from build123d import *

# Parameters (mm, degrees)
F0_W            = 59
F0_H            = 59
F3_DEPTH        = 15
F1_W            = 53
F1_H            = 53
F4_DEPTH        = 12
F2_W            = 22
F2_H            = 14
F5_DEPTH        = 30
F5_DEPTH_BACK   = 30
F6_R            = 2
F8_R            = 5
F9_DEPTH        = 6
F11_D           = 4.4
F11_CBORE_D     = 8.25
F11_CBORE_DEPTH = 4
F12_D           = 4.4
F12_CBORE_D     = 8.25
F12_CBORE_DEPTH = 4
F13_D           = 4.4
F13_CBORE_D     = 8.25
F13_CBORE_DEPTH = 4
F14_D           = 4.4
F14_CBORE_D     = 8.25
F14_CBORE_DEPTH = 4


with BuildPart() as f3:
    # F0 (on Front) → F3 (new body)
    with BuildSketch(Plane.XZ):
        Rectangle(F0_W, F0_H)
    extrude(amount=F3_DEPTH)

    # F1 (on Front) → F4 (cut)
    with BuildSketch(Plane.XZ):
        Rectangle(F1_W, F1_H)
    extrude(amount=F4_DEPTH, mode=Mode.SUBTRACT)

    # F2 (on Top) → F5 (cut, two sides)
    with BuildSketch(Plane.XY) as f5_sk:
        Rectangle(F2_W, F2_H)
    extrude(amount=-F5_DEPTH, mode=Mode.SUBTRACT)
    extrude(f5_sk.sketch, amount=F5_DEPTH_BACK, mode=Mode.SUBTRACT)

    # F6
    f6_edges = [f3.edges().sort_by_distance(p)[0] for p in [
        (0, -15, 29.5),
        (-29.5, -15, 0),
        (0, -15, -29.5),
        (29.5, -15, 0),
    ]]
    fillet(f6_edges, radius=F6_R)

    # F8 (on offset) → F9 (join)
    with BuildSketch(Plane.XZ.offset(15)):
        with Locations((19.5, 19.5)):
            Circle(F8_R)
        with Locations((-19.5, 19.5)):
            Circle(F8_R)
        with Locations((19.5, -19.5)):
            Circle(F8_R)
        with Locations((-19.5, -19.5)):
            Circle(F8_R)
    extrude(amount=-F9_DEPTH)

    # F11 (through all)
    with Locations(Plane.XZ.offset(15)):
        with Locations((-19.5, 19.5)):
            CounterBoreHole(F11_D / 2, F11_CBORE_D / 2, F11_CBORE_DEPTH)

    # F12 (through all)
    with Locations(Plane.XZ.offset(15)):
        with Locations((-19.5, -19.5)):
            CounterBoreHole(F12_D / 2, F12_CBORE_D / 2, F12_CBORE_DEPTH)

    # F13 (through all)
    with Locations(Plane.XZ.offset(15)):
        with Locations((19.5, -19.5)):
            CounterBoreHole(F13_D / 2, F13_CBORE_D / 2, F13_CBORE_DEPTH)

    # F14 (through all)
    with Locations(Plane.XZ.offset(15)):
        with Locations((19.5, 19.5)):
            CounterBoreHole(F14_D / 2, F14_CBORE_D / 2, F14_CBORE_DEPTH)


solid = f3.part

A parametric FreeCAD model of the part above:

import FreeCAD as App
import Part
import Sketcher
from FreeCAD import Vector


def edges_at(feature, points):
    """Names of the edges that pass closest to the given points."""
    edges = feature.Shape.Edges
    near = lambda p: min(range(len(edges)), key=lambda i: edges[i].distToShape(Part.Vertex(*p))[0])
    return sorted({f"Edge{near(p) + 1}" for p in points})

doc = App.newDocument("Part")
body = doc.addObject("PartDesign::Body", "Body")

# Sketch on XZ plane
sketch1 = doc.addObject("Sketcher::SketchObject", "Sketch")
body.addObject(sketch1)
sketch1.AttachmentSupport = (doc.XZ_Plane, [""])
sketch1.MapMode = "FlatFace"
sketch1.addGeometry([
    Part.LineSegment(Vector(-30, 30, 0), Vector(-30, -30, 0)),
    Part.LineSegment(Vector(-30, -30, 0), Vector(30, -30, 0)),
    Part.LineSegment(Vector(30, -30, 0), Vector(30, 30, 0)),
    Part.LineSegment(Vector(30, 30, 0), Vector(-30, 30, 0)),
], False)
sketch1.addConstraint([
    Sketcher.Constraint("Coincident", 0, 2, 1, 1),
    Sketcher.Constraint("Coincident", 1, 2, 2, 1),
    Sketcher.Constraint("Coincident", 2, 2, 3, 1),
    Sketcher.Constraint("Coincident", 3, 2, 0, 1),
    Sketcher.Constraint("Vertical", 0),
    Sketcher.Constraint("Horizontal", 1),
    Sketcher.Constraint("Vertical", 2),
    Sketcher.Constraint("Horizontal", 3),
    Sketcher.Constraint("Symmetric", 0, 2, 2, 2, -1, 1),
    Sketcher.Constraint("Equal", 3, 0),
    Sketcher.Constraint("DistanceX", 1, 1, 1, 2, 59.0),
])
pad1 = doc.addObject("PartDesign::Pad", "Pad")
body.addObject(pad1)
pad1.Profile = sketch1
pad1.Length = 15

# Sketch on XZ plane
sketch2 = doc.addObject("Sketcher::SketchObject", "Sketch001")
body.addObject(sketch2)
sketch2.AttachmentSupport = (doc.XZ_Plane, [""])
sketch2.MapMode = "FlatFace"
sketch2.addGeometry([
    Part.LineSegment(Vector(-26, 26, 0), Vector(-26, -26, 0)),
    Part.LineSegment(Vector(-26, -26, 0), Vector(26, -26, 0)),
    Part.LineSegment(Vector(26, -26, 0), Vector(26, 26, 0)),
    Part.LineSegment(Vector(26, 26, 0), Vector(-26, 26, 0)),
], False)
sketch2.addConstraint([
    Sketcher.Constraint("Coincident", 0, 2, 1, 1),
    Sketcher.Constraint("Coincident", 1, 2, 2, 1),
    Sketcher.Constraint("Coincident", 2, 2, 3, 1),
    Sketcher.Constraint("Coincident", 3, 2, 0, 1),
    Sketcher.Constraint("Vertical", 0),
    Sketcher.Constraint("Horizontal", 1),
    Sketcher.Constraint("Vertical", 2),
    Sketcher.Constraint("Horizontal", 3),
    Sketcher.Constraint("Symmetric", 0, 2, 2, 2, -1, 1),
    Sketcher.Constraint("Equal", 3, 0),
    Sketcher.Constraint("DistanceX", 1, 1, 1, 2, 53.0),
])
pocket1 = doc.addObject("PartDesign::Pocket", "Pocket")
body.addObject(pocket1)
pocket1.Profile = sketch2
pocket1.Length = 12
pocket1.Reversed = True

# Sketch on XY plane
sketch3 = doc.addObject("Sketcher::SketchObject", "Sketch002")
body.addObject(sketch3)
sketch3.AttachmentSupport = (doc.XY_Plane, [""])
sketch3.MapMode = "FlatFace"
sketch3.addGeometry([
    Part.LineSegment(Vector(-11, 7, 0), Vector(-11, -7, 0)),
    Part.LineSegment(Vector(-11, -7, 0), Vector(11, -7, 0)),
    Part.LineSegment(Vector(11, -7, 0), Vector(11, 7, 0)),
    Part.LineSegment(Vector(11, 7, 0), Vector(-11, 7, 0)),
], False)
sketch3.addConstraint([
    Sketcher.Constraint("Coincident", 0, 2, 1, 1),
    Sketcher.Constraint("Coincident", 1, 2, 2, 1),
    Sketcher.Constraint("Coincident", 2, 2, 3, 1),
    Sketcher.Constraint("Coincident", 3, 2, 0, 1),
    Sketcher.Constraint("Vertical", 0),
    Sketcher.Constraint("Horizontal", 1),
    Sketcher.Constraint("Vertical", 2),
    Sketcher.Constraint("Horizontal", 3),
    Sketcher.Constraint("Symmetric", 0, 2, 2, 2, -1, 1),
    Sketcher.Constraint("DistanceX", 1, 1, 1, 2, 22.0),
    Sketcher.Constraint("DistanceY", 0, 2, 0, 1, 14.0),
])
pocket2 = doc.addObject("PartDesign::Pocket", "Pocket001")
body.addObject(pocket2)
pocket2.Profile = sketch3
pocket2.Type = "ThroughAll"
pocket2.Midplane = True
doc.recompute()

fillet = doc.addObject("PartDesign::Fillet", "Fillet")
body.addObject(fillet)
fillet.Base = (pocket2, edges_at(pocket2, [
    (0, -15, 29.5),
    (-29.5, -15, 0),
    (0, -15, -29.5),
    (29.5, -15, 0),
]))
fillet.Radius = 2

# Sketch on XZ plane
sketch4 = doc.addObject("Sketcher::SketchObject", "Sketch003")
body.addObject(sketch4)
sketch4.AttachmentSupport = (doc.XZ_Plane, [""])
sketch4.MapMode = "FlatFace"
sketch4.AttachmentOffset = App.Placement(Vector(0, 0, 15), App.Rotation())
sketch4.addGeometry([
    Part.Circle(Vector(20, 20, 0), Vector(0, 0, 1), 5),
    Part.Circle(Vector(-20, 20, 0), Vector(0, 0, 1), 5),
    Part.Circle(Vector(20, -20, 0), Vector(0, 0, 1), 5),
    Part.Circle(Vector(-20, -20, 0), Vector(0, 0, 1), 5),
], False)
sketch4.addConstraint([
    Sketcher.Constraint("Equal", 0, 1),
    Sketcher.Constraint("Equal", 1, 2),
    Sketcher.Constraint("Equal", 2, 3),
    Sketcher.Constraint("Symmetric", 1, 3, 2, 3, -1, 1),
    Sketcher.Constraint("Symmetric", 0, 3, 3, 3, -1, 1),
    Sketcher.Constraint("Symmetric", 0, 3, 1, 3, -2),
    Sketcher.Constraint("Diameter", 0, 10.0),
    Sketcher.Constraint("DistanceX", 1, 3, 0, 3, 39.0),
    Sketcher.Constraint("DistanceY", 2, 3, 0, 3, 39.0),
])
pad2 = doc.addObject("PartDesign::Pad", "Pad001")
body.addObject(pad2)
pad2.Profile = sketch4
pad2.Length = 6
pad2.Reversed = True

# Sketch on XZ plane
sketch5 = doc.addObject("Sketcher::SketchObject", "Sketch004")
body.addObject(sketch5)
sketch5.AttachmentSupport = (doc.XZ_Plane, [""])
sketch5.MapMode = "FlatFace"
sketch5.AttachmentOffset = App.Placement(Vector(0, 0, 15), App.Rotation())
sketch5.addGeometry(Part.Circle(Vector(-19.5, 19.5, 0), Vector(0, 0, 1), 2.2), False)
sketch5.addConstraint([
    Sketcher.Constraint("Diameter", 0, 4.4),
    Sketcher.Constraint("DistanceX", 0, 3, -1, 1, 19.5),
    Sketcher.Constraint("DistanceY", -1, 1, 0, 3, 19.5),
])
doc.recompute()
hole = doc.addObject("PartDesign::Hole", "Hole")
body.addObject(hole)
hole.Profile = sketch5
hole.ThreadType = "None"
hole.Diameter = 4.4
hole.DepthType = "ThroughAll"
hole.HoleCutType = "Counterbore"
hole.HoleCutDiameter = 8.25
hole.HoleCutDepth = 4

# Sketch on XZ plane
sketch6 = doc.addObject("Sketcher::SketchObject", "Sketch005")
body.addObject(sketch6)
sketch6.AttachmentSupport = (doc.XZ_Plane, [""])
sketch6.MapMode = "FlatFace"
sketch6.AttachmentOffset = App.Placement(Vector(0, 0, 15), App.Rotation())
sketch6.addGeometry(Part.Circle(Vector(-19.5, -19.5, 0), Vector(0, 0, 1), 2.2), False)
sketch6.addConstraint([
    Sketcher.Constraint("Diameter", 0, 4.4),
    Sketcher.Constraint("DistanceX", 0, 3, -1, 1, 19.5),
    Sketcher.Constraint("DistanceY", 0, 3, -1, 1, 19.5),
])
doc.recompute()
hole2 = doc.addObject("PartDesign::Hole", "Hole001")
body.addObject(hole2)
hole2.Profile = sketch6
hole2.ThreadType = "None"
hole2.Diameter = 4.4
hole2.DepthType = "ThroughAll"
hole2.HoleCutType = "Counterbore"
hole2.HoleCutDiameter = 8.25
hole2.HoleCutDepth = 4

# Sketch on XZ plane
sketch7 = doc.addObject("Sketcher::SketchObject", "Sketch006")
body.addObject(sketch7)
sketch7.AttachmentSupport = (doc.XZ_Plane, [""])
sketch7.MapMode = "FlatFace"
sketch7.AttachmentOffset = App.Placement(Vector(0, 0, 15), App.Rotation())
sketch7.addGeometry(Part.Circle(Vector(19.5, -19.5, 0), Vector(0, 0, 1), 2.2), False)
sketch7.addConstraint([
    Sketcher.Constraint("Diameter", 0, 4.4),
    Sketcher.Constraint("DistanceX", -1, 1, 0, 3, 19.5),
    Sketcher.Constraint("DistanceY", 0, 3, -1, 1, 19.5),
])
doc.recompute()
hole3 = doc.addObject("PartDesign::Hole", "Hole002")
body.addObject(hole3)
hole3.Profile = sketch7
hole3.ThreadType = "None"
hole3.Diameter = 4.4
hole3.DepthType = "ThroughAll"
hole3.HoleCutType = "Counterbore"
hole3.HoleCutDiameter = 8.25
hole3.HoleCutDepth = 4

# Sketch on XZ plane
sketch8 = doc.addObject("Sketcher::SketchObject", "Sketch007")
body.addObject(sketch8)
sketch8.AttachmentSupport = (doc.XZ_Plane, [""])
sketch8.MapMode = "FlatFace"
sketch8.AttachmentOffset = App.Placement(Vector(0, 0, 15), App.Rotation())
sketch8.addGeometry(Part.Circle(Vector(19.5, 19.5, 0), Vector(0, 0, 1), 2.2), False)
sketch8.addConstraint([
    Sketcher.Constraint("Diameter", 0, 4.4),
    Sketcher.Constraint("DistanceX", -1, 1, 0, 3, 19.5),
    Sketcher.Constraint("DistanceY", -1, 1, 0, 3, 19.5),
])
doc.recompute()
hole4 = doc.addObject("PartDesign::Hole", "Hole003")
body.addObject(hole4)
hole4.Profile = sketch8
hole4.ThreadType = "None"
hole4.Diameter = 4.4
hole4.DepthType = "ThroughAll"
hole4.HoleCutType = "Counterbore"
hole4.HoleCutDiameter = 8.25
hole4.HoleCutDepth = 4

doc.recompute()
